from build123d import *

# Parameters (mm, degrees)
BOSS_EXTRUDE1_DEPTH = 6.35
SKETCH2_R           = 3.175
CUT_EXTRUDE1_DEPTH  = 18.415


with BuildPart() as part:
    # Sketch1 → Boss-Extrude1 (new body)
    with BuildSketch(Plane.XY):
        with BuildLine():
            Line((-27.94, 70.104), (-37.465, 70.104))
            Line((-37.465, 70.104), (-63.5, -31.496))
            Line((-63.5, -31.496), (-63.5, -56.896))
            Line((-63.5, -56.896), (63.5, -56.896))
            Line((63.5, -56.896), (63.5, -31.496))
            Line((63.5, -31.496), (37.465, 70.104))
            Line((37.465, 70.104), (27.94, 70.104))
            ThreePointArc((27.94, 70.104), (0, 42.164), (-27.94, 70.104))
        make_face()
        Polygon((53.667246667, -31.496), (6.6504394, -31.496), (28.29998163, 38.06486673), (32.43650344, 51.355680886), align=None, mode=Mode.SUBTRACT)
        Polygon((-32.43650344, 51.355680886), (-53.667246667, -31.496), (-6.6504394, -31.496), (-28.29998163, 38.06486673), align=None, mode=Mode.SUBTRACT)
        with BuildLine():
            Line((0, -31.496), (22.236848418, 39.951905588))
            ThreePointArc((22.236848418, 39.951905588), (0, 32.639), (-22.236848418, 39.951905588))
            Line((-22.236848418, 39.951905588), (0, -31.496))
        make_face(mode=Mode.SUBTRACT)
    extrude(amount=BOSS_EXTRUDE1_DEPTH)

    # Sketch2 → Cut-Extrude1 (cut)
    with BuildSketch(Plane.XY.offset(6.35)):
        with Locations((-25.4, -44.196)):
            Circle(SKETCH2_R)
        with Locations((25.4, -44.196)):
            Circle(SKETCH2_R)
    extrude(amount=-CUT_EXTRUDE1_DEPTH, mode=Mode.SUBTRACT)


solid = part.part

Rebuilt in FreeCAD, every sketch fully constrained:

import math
import FreeCAD as App
import Part
import Sketcher
Q = App.Units.Quantity

doc = App.newDocument("Part")
params = doc.addObject("Spreadsheet::Sheet", "Params")
for row, (alias, value) in enumerate([
    ("sketch1_radius", "1.1 in"),
    ("sketch1_width", "5 in"),
    ("sketch1_height", "1 in"),
    ("sketch1_radius2", "1.475 in"),
    ("sketch1_width2", "0.375 in"),
    ("pad1_length", "0.25 in"),
    ("sketch2_diameter", "0.25 in"),
    ("pocket1_length", "0.725 in"),
], start=1):
    params.set(f"A{row}", alias)
    params.set(f"B{row}", "=" + value)
    params.setAlias(f"B{row}", alias)

body = doc.addObject("PartDesign::Body", "Body")

# Sketch on XY plane
sketch1 = body.newObject("Sketcher::SketchObject", "Sketch")
sketch1.AttachmentSupport = (doc.getObject("XY_Plane"), [""])
sketch1.MapMode = "FlatFace"
sketch1.addGeometry([
    Part.LineSegment(App.Vector(-28, 70, 0), App.Vector(-37, 70, 0)),  # 0
    Part.LineSegment(App.Vector(-37, 70, 0), App.Vector(-64, -31, 0)),  # 1
    Part.LineSegment(App.Vector(-64, -31, 0), App.Vector(-64, -57, 0)),  # 2
    Part.LineSegment(App.Vector(-64, -57, 0), App.Vector(64, -57, 0)),  # 3
    Part.LineSegment(App.Vector(64, -57, 0), App.Vector(64, -31, 0)),  # 4
    Part.LineSegment(App.Vector(64, -31, 0), App.Vector(37, 70, 0)),  # 5
    Part.LineSegment(App.Vector(37, 70, 0), App.Vector(28, 70, 0)),  # 6
    Part.ArcOfCircle(Part.Circle(App.Vector(0, 70, 0), App.Vector(0, 0, 1), 28), math.radians(180), math.radians(360)),  # 7
    Part.LineSegment(App.Vector(22, 40, 0), App.Vector(0, -31, 0)),  # 8
    Part.LineSegment(App.Vector(0, -31, 0), App.Vector(-22, 40, 0)),  # 9
    Part.ArcOfCircle(Part.Circle(App.Vector(0, 70, 0), App.Vector(0, 0, 1), 37), math.radians(-126), math.radians(-54)),  # 10
    Part.LineSegment(App.Vector(-54, -31, 0), App.Vector(-32, 51, 0)),  # 11
    Part.LineSegment(App.Vector(-32, 51, 0), App.Vector(-28, 38, 0)),  # 12
    Part.LineSegment(App.Vector(-28, 38, 0), App.Vector(-7, -31, 0)),  # 13
    Part.LineSegment(App.Vector(-7, -31, 0), App.Vector(-54, -31, 0)),  # 14
    Part.LineSegment(App.Vector(32, 51, 0), App.Vector(54, -31, 0)),  # 15
    Part.LineSegment(App.Vector(54, -31, 0), App.Vector(7, -31, 0)),  # 16
    Part.LineSegment(App.Vector(7, -31, 0), App.Vector(28, 38, 0)),  # 17
    Part.LineSegment(App.Vector(28, 38, 0), App.Vector(32, 51, 0)),  # 18
], False)
sketch1.addConstraint([
    Sketcher.Constraint("Coincident", 0, 2, 1, 1),
    Sketcher.Constraint("Coincident", 1, 2, 2, 1),
    Sketcher.Constraint("Coincident", 2, 2, 3, 1),
    Sketcher.Constraint("Coincident", 3, 2, 4, 1),
    Sketcher.Constraint("Coincident", 4, 2, 5, 1),
    Sketcher.Constraint("Coincident", 5, 2, 6, 1),
    Sketcher.Constraint("Coincident", 6, 2, 7, 2),
    Sketcher.Constraint("Coincident", 7, 1, 0, 1),
    Sketcher.Constraint("Coincident", 8, 2, 9, 1),
    Sketcher.Constraint("Coincident", 9, 2, 10, 1),
    Sketcher.Constraint("Coincident", 10, 2, 8, 1),
    Sketcher.Constraint("Coincident", 11, 2, 12, 1),
    Sketcher.Constraint("Coincident", 12, 2, 13, 1),
    Sketcher.Constraint("Coincident", 13, 2, 14, 1),
    Sketcher.Constraint("Coincident", 14, 2, 11, 1),
    Sketcher.Constraint("Coincident", 15, 2, 16, 1),
    Sketcher.Constraint("Coincident", 16, 2, 17, 1),
    Sketcher.Constraint("Coincident", 17, 2, 18, 1),
    Sketcher.Constraint("Coincident", 18, 2, 15, 1),
    Sketcher.Constraint("Horizontal", 0),
    Sketcher.Constraint("Vertical", 2),
    Sketcher.Constraint("Horizontal", 3),
    Sketcher.Constraint("Vertical", 4),
    Sketcher.Constraint("Horizontal", 6),
    Sketcher.Constraint("Horizontal", 14),
    Sketcher.Constraint("Horizontal", 16),
    Sketcher.Constraint("Coincident", 10, 3, 7, 3),
    Sketcher.Constraint("Symmetric", 1, 2, 4, 2, -2),
    Sketcher.Constraint("Symmetric", 0, 2, 5, 2, -2),
    Sketcher.Constraint("Symmetric", 9, 2, 10, 2, -2),
    Sketcher.Constraint("Symmetric", 14, 2, 15, 2, -2),
    Sketcher.Constraint("Symmetric", 12, 2, 17, 2, -2),
    Sketcher.Constraint("Symmetric", 11, 2, 18, 2, -2),
    Sketcher.Constraint("PointOnObject", 8, 2, -2),
    Sketcher.Constraint("Parallel", 1, 11),
    Sketcher.Constraint("Parallel", 9, 12),
    Sketcher.Constraint("Parallel", 12, 13),
    Sketcher.Constraint("Parallel", 8, 17),
    Sketcher.Constraint("Horizontal", 10, 3, 0, 2),
    Sketcher.Constraint("Horizontal", 4, 2, 8, 2),
    Sketcher.Constraint("Horizontal", 8, 2, 13, 2),
    Sketcher.Constraint("Radius", 7, Q("1.1 in")),
    Sketcher.Constraint("DistanceX", 3, 1, 3, 2, Q("5 in")),
    Sketcher.Constraint("DistanceY", 2, 2, 2, 1, Q("1 in")),
    Sketcher.Constraint("Radius", 10, Q("1.475 in")),
    Sketcher.Constraint("DistanceY", 1, 2, 0, 2, Q("4 in")),
    Sketcher.Constraint("DistanceX", 0, 2, 0, 1, Q("0.375 in")),
    Sketcher.Constraint("DistanceY", -1, 1, 7, 3, Q("2.76 in")),
    Sketcher.Constraint("DistanceX", 10, 2, 15, 2, Q("31.430398 mm")),
    Sketcher.Constraint("Distance", 8, Q("74.828341 mm")),
    Sketcher.Constraint("Distance", 13, Q("72.85202 mm")),
    Sketcher.Constraint("DistanceX", 14, 2, 14, 1, Q("47.016807 mm")),
])
sketch1.setExpression("Constraints[41]", "Params.sketch1_radius")
sketch1.setExpression("Constraints[42]", "Params.sketch1_width")
sketch1.setExpression("Constraints[43]", "Params.sketch1_height")
sketch1.setExpression("Constraints[44]", "Params.sketch1_radius2")
sketch1.setExpression("Constraints[46]", "Params.sketch1_width2")
pad1 = body.newObject("PartDesign::Pad", "Pad")
pad1.Profile = sketch1
pad1.setExpression("Length", "Params.pad1_length")

# Sketch on XY plane
sketch2 = body.newObject("Sketcher::SketchObject", "Sketch001")
sketch2.AttachmentSupport = (doc.getObject("XY_Plane"), [""])
sketch2.MapMode = "FlatFace"
sketch2.AttachmentOffset = App.Placement(App.Vector(0, 0, 0.25 * 25.4), App.Rotation())
sketch2.addGeometry([
    Part.Circle(App.Vector(-25.4, -44.2, 0), App.Vector(0, 0, 1), 3.2),
    Part.Circle(App.Vector(25.4, -44.2, 0), App.Vector(0, 0, 1), 3.2),
], False)
sketch2.addConstraint([
    Sketcher.Constraint("Equal", 0, 1),
    Sketcher.Constraint("Symmetric", 0, 3, 1, 3, -2),
    Sketcher.Constraint("Diameter", 0, Q("0.25 in")),
    Sketcher.Constraint("DistanceX", 0, 3, -1, 1, Q("1 in")),
    Sketcher.Constraint("DistanceY", 0, 3, -1, 1, Q("1.74 in")),
])
sketch2.setExpression("Constraints[2]", "Params.sketch2_diameter")
pocket1 = body.newObject("PartDesign::Pocket", "Pocket")
pocket1.Profile = sketch2
pocket1.setExpression("Length", "Params.pocket1_length")

doc.recompute()
